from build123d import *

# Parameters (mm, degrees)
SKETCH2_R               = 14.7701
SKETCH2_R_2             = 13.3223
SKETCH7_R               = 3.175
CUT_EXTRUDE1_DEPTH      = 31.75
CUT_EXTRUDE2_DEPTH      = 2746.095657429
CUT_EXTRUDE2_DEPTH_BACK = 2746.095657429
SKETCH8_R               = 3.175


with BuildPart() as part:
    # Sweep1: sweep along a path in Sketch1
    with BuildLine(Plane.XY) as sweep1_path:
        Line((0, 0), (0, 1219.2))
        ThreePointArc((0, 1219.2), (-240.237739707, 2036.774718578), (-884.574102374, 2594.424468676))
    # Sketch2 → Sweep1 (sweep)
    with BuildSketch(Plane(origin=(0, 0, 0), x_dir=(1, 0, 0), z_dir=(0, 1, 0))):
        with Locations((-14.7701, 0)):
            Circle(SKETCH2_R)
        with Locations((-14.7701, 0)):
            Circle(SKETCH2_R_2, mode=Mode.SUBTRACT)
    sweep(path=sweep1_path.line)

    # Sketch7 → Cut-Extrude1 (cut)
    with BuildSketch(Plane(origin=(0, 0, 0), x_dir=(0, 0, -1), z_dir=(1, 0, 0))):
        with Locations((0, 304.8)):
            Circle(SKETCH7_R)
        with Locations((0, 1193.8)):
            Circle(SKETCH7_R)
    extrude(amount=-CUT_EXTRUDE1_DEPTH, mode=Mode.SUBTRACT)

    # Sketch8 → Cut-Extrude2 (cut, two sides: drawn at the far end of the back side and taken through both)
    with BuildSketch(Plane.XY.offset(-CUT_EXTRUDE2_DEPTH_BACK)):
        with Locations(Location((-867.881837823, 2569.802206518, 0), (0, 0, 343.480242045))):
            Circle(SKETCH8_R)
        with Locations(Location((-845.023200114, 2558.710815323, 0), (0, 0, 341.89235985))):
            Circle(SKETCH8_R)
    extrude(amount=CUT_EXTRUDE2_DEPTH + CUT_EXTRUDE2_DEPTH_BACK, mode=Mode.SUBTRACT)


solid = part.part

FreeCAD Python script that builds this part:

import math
import FreeCAD as App
import Part
import Sketcher
from FreeCAD import Vector
Q = App.Units.Quantity

doc = App.newDocument("Part")
body = doc.addObject("PartDesign::Body", "Body")

# Sketch on XZ plane
sketch1 = body.newObject("Sketcher::SketchObject", "Sketch")
sketch1.AttachmentSupport = (doc.getObject("XZ_Plane"), [""])
sketch1.MapMode = "FlatFace"
sketch1.addGeometry([
    Part.Circle(Vector(-15, 0, 0), Vector(0, 0, 1), 15),
    Part.Circle(Vector(-15, 0, 0), Vector(0, 0, 1), 13),
], False)
sketch1.addConstraint([
    Sketcher.Constraint("Coincident", 1, 3, 0, 3),
    Sketcher.Constraint("PointOnObject", 0, 3, -1),
    Sketcher.Constraint("Diameter", 0, Q("1.163 in")),
    Sketcher.Constraint("Diameter", 1, Q("1.049 in")),
    Sketcher.Constraint("DistanceX", 0, 3, -1, 1, Q("0.5815 in")),
])

# Sketch on XY plane
sketch2 = body.newObject("Sketcher::SketchObject", "Sketch001")
sketch2.AttachmentSupport = (doc.getObject("XY_Plane"), [""])
sketch2.MapMode = "FlatFace"
sketch2.addGeometry([
    Part.LineSegment(Vector(0, 0, 0), Vector(0, 1219, 0)),
    Part.ArcOfCircle(Part.Circle(Vector(-1511, 1219, 0), Vector(0, 0, 1), 1511), math.radians(0), math.radians(65)),
], False)
sketch2.addConstraint([
    Sketcher.Constraint("Coincident", 0, 2, 1, 1),
    Sketcher.Constraint("Vertical", 0),
    Sketcher.Constraint("Coincident", 0, 1, -1, 1),
    Sketcher.Constraint("Horizontal", 1, 3, 0, 2),
    Sketcher.Constraint("Radius", 1, Q("59.5 in")),
    Sketcher.Constraint("DistanceY", 0, 1, 0, 2, Q("48 in")),
    Sketcher.Constraint("DistanceY", -1, 1, 1, 2, 2594.424469),
])
doc.recompute()

additivepipe = body.newObject("PartDesign::AdditivePipe", "AdditivePipe")
additivepipe.Profile = sketch1
additivepipe.Spine = (sketch2, ["Edge1", "Edge2"])

# Sketch on YZ plane
sketch3 = body.newObject("Sketcher::SketchObject", "Sketch002")
sketch3.AttachmentSupport = (doc.getObject("YZ_Plane"), [""])
sketch3.MapMode = "FlatFace"
sketch3.addGeometry([
    Part.Circle(Vector(304.8, 0, 0), Vector(0, 0, 1), 3.2),
    Part.Circle(Vector(1193.8, 0, 0), Vector(0, 0, 1), 3.2),
], False)
sketch3.addConstraint([
    Sketcher.Constraint("Equal", 0, 1),
    Sketcher.Constraint("PointOnObject", 0, 3, -1),
    Sketcher.Constraint("PointOnObject", 1, 3, -1),
    Sketcher.Constraint("Diameter", 0, Q("0.25 in")),
    Sketcher.Constraint("DistanceX", -1, 1, 0, 3, Q("12 in")),
    Sketcher.Constraint("DistanceX", -1, 1, 1, 3, Q("47 in")),
])
pocket1 = body.newObject("PartDesign::Pocket", "Pocket")
pocket1.Profile = sketch3
pocket1.Length = Q("1.25 in")

# Sketch on XY plane
sketch4 = body.newObject("Sketcher::SketchObject", "Sketch003")
sketch4.AttachmentSupport = (doc.getObject("XY_Plane"), [""])
sketch4.MapMode = "FlatFace"
sketch4.addGeometry([
    Part.Circle(Vector(-867.9, 2569.8, 0), Vector(0, 0, 1), 3.2),
    Part.Circle(Vector(-845, 2558.7, 0), Vector(0, 0, 1), 3.2),
], False)
sketch4.addConstraint([
    Sketcher.Constraint("Equal", 0, 1),
    Sketcher.Constraint("Diameter", 0, Q("0.25 in")),
    Sketcher.Constraint("DistanceX", 1, 3, -1, 1, 845.0232),
    Sketcher.Constraint("DistanceY", 1, 3, 0, 3, 11.091391),
    Sketcher.Constraint("DistanceX", 0, 3, -1, 1, 867.881838),
    Sketcher.Constraint("DistanceY", -1, 1, 0, 3, 2569.802207),
])
pocket2 = body.newObject("PartDesign::Pocket", "Pocket001")
pocket2.Profile = sketch4
pocket2.Type = "TwoLengths"
pocket2.Length = 2746.095657
pocket2.Length2 = 2746.095657
pocket2.Reversed = True

doc.recompute()
